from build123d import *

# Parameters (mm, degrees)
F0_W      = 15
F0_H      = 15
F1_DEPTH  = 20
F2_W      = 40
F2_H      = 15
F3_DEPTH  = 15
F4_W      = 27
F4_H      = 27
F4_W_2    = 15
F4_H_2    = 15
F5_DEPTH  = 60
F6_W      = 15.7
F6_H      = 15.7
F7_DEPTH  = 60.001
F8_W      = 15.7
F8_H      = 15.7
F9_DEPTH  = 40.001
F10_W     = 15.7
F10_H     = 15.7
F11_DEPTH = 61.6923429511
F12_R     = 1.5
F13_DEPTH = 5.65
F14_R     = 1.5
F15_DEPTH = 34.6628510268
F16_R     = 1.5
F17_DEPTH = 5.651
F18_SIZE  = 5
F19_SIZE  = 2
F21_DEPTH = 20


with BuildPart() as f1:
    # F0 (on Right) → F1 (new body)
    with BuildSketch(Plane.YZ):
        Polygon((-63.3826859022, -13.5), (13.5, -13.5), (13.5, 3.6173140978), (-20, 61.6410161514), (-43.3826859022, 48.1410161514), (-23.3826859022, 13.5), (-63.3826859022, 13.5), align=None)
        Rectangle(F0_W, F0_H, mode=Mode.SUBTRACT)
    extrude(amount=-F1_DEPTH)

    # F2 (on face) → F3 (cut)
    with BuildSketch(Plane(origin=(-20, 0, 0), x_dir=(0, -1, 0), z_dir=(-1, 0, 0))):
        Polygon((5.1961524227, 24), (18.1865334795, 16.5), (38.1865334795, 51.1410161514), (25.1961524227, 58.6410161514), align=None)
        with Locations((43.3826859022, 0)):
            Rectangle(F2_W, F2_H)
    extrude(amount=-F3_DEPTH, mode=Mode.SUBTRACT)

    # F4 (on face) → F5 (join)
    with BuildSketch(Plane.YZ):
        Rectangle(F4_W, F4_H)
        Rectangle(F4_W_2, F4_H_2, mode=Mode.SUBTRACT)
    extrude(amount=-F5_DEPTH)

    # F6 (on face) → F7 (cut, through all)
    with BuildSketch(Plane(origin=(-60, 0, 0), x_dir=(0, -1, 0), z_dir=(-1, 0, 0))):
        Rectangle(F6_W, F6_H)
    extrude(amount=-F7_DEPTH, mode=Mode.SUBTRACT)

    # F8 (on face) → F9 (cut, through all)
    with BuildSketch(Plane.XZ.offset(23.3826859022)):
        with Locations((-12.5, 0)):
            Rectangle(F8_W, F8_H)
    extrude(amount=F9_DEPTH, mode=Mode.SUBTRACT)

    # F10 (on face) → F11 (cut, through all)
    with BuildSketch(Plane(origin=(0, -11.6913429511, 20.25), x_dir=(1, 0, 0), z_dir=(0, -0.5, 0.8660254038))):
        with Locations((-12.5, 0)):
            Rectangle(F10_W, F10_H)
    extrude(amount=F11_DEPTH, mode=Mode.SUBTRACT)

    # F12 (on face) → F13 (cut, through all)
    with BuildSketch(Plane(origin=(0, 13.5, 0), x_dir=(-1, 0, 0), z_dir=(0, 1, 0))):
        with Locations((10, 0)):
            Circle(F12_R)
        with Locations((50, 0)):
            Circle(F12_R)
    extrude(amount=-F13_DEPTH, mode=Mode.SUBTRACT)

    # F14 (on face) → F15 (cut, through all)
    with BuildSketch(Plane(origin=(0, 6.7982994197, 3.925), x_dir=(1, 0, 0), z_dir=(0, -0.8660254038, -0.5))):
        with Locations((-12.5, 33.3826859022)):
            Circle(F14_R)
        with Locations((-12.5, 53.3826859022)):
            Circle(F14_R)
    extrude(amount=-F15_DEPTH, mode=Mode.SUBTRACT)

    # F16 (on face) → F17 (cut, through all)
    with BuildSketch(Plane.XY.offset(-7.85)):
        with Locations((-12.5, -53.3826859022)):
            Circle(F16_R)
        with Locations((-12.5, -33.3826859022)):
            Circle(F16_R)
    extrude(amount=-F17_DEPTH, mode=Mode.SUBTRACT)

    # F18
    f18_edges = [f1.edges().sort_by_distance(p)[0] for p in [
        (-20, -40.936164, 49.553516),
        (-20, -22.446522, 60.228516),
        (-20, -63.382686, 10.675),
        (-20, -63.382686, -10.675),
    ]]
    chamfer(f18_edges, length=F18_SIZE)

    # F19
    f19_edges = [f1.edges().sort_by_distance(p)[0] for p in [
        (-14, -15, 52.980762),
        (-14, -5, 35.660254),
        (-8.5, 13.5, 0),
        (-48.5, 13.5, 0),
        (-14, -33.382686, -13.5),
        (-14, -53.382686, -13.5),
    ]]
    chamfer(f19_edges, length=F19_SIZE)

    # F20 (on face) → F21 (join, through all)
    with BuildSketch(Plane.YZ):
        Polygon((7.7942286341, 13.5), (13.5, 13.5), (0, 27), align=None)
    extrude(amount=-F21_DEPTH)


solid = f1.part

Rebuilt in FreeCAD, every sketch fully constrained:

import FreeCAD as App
import Part
import Sketcher
from FreeCAD import Vector
Q = App.Units.Quantity


def edges_at(feature, points):
    """Names of the edges that pass closest to the given points."""
    edges = feature.Shape.Edges
    near = lambda p: min(range(len(edges)), key=lambda i: edges[i].distToShape(Part.Vertex(*p))[0])
    return sorted({f"Edge{near(p) + 1}" for p in points})


def add_polygon(sketch, points):
    """Adds a closed chain of lines whose ends are joined by coincident constraints."""
    first, n = sketch.GeometryCount, len(points)
    for a, b in zip(points, points[1:] + points[:1]):
        sketch.addGeometry(Part.LineSegment(App.Vector(*a, 0), App.Vector(*b, 0)), False)
    for i in range(n):
        sketch.addConstraint(Sketcher.Constraint("Coincident", first + i, 2, first + (i + 1) % n, 1))

doc = App.newDocument("Part")
body = doc.addObject("PartDesign::Body", "Body")

sketch1 = body.newObject("Sketcher::SketchObject", "Sketch")
sketch1.AttachmentSupport = (doc.getObject("YZ_Plane"), [""])
sketch1.MapMode = "FlatFace"
add_polygon(sketch1, [(-63, -14), (14, -14), (14, 4), (-20, 62), (-43, 48), (-23, 14), (-63, 14)])
add_polygon(sketch1, [(8, -8), (-8, -8), (-8, 8), (8, 8)])
sketch1.addConstraint([
    Sketcher.Constraint("Horizontal", 0),
    Sketcher.Constraint("Vertical", 1),
    Sketcher.Constraint("Horizontal", 5),
    Sketcher.Constraint("Vertical", 6),
    Sketcher.Constraint("Horizontal", 7),
    Sketcher.Constraint("Vertical", 8),
    Sketcher.Constraint("Horizontal", 9),
    Sketcher.Constraint("Vertical", 10),
    Sketcher.Constraint("Symmetric", 7, 2, 9, 2, -1, 1),
    Sketcher.Constraint("Perpendicular", 2, 3),
    Sketcher.Constraint("Perpendicular", 3, 4),
    Sketcher.Constraint("Equal", 9, 8),
    Sketcher.Constraint("DistanceX", 5, 2, 5, 1, Q("40 mm")),
    Sketcher.Constraint("DistanceX", 7, 2, 7, 1, Q("15 mm")),
    Sketcher.Constraint("DistanceY", 6, 2, 6, 1, Q("27 mm")),
    Sketcher.Constraint("Angle", 2, Q("120 deg")),
    Sketcher.Constraint("Distance", 2, Q("67 mm")),
    Sketcher.Constraint("Distance", 3, Q("27 mm")),
    Sketcher.Constraint("Distance", 4, Q("40 mm")),
    Sketcher.Constraint("DistanceX", 2, 2, -1, 1, Q("20 mm")),
    Sketcher.Constraint("DistanceY", 0, 2, 7, 2, Q("6 mm")),
])
pad1 = body.newObject("PartDesign::Pad", "Pad")
pad1.Profile = sketch1
pad1.Length = 20
pad1.Reversed = True

sketch2 = body.newObject("Sketcher::SketchObject", "Sketch001")
sketch2.AttachmentSupport = (doc.getObject("YZ_Plane"), [""])
sketch2.MapMode = "FlatFace"
sketch2.AttachmentOffset = App.Placement(Vector(0, 0, -20), App.Rotation())
add_polygon(sketch2, [(-5, 24), (-18, 16), (-38, 51), (-25, 59)])
add_polygon(sketch2, [(-23, 8), (-23, -8), (-63, -8), (-63, 8)])
sketch2.addConstraint([
    Sketcher.Constraint("Vertical", 4),
    Sketcher.Constraint("Horizontal", 5),
    Sketcher.Constraint("Vertical", 6),
    Sketcher.Constraint("Horizontal", 7),
    Sketcher.Constraint("Perpendicular", 0, 1),
    Sketcher.Constraint("Perpendicular", 1, 2),
    Sketcher.Constraint("Perpendicular", 2, 3),
    Sketcher.Constraint("DistanceX", 5, 2, 5, 1, Q("40 mm")),
    Sketcher.Constraint("DistanceY", 4, 2, 4, 1, Q("15 mm")),
    Sketcher.Constraint("Angle", 0, Q("-150 deg")),
    Sketcher.Constraint("Distance", 0, Q("15 mm")),
    Sketcher.Constraint("Distance", 1, Q("40 mm")),
    Sketcher.Constraint("DistanceY", -1, 1, 3, 2, Q("24 mm")),
    Sketcher.Constraint("DistanceY", 4, 2, 0, 2, Q("24 mm")),
    Sketcher.Constraint("DistanceX", 0, 2, -1, 1, Q("18.186533 mm")),
    Sketcher.Constraint("DistanceX", 4, 2, -1, 1, Q("23.382686 mm")),
])
pocket1 = body.newObject("PartDesign::Pocket", "Pocket")
pocket1.Profile = sketch2
pocket1.Length = 15
pocket1.Reversed = True

sketch3 = body.newObject("Sketcher::SketchObject", "Sketch002")
sketch3.AttachmentSupport = (doc.getObject("YZ_Plane"), [""])
sketch3.MapMode = "FlatFace"
add_polygon(sketch3, [(-14, 14), (-14, -14), (14, -14), (14, 14)])
add_polygon(sketch3, [(8, -8), (-8, -8), (-8, 8), (8, 8)])
sketch3.addConstraint([
    Sketcher.Constraint("Vertical", 0),
    Sketcher.Constraint("Horizontal", 1),
    Sketcher.Constraint("Vertical", 2),
    Sketcher.Constraint("Horizontal", 3),
    Sketcher.Constraint("Horizontal", 4),
    Sketcher.Constraint("Vertical", 5),
    Sketcher.Constraint("Horizontal", 6),
    Sketcher.Constraint("Vertical", 7),
    Sketcher.Constraint("Symmetric", 0, 2, 2, 2, -1, 1),
    Sketcher.Constraint("Symmetric", 4, 2, 6, 2, -1, 1),
    Sketcher.Constraint("Equal", 3, 0),
    Sketcher.Constraint("Equal", 6, 5),
    Sketcher.Constraint("DistanceX", 1, 1, 1, 2, Q("27 mm")),
    Sketcher.Constraint("DistanceX", 4, 2, 4, 1, Q("15 mm")),
])
pad2 = body.newObject("PartDesign::Pad", "Pad001")
pad2.Profile = sketch3
pad2.Length = 60
pad2.Reversed = True

sketch4 = body.newObject("Sketcher::SketchObject", "Sketch003")
sketch4.AttachmentSupport = (doc.getObject("YZ_Plane"), [""])
sketch4.MapMode = "FlatFace"
sketch4.AttachmentOffset = App.Placement(Vector(0, 0, -60), App.Rotation())
add_polygon(sketch4, [(8, 8), (8, -8), (-8, -8), (-8, 8)])
sketch4.addConstraint([
    Sketcher.Constraint("Vertical", 0),
    Sketcher.Constraint("Horizontal", 1),
    Sketcher.Constraint("Vertical", 2),
    Sketcher.Constraint("Horizontal", 3),
    Sketcher.Constraint("Symmetric", 0, 2, 2, 2, -1, 1),
    Sketcher.Constraint("Equal", 3, 0),
    Sketcher.Constraint("DistanceX", 1, 2, 1, 1, Q("15.7 mm")),
])
pocket2 = body.newObject("PartDesign::Pocket", "Pocket001")
pocket2.Profile = sketch4
pocket2.Type = "ThroughAll"
pocket2.Reversed = True

sketch5 = body.newObject("Sketcher::SketchObject", "Sketch004")
sketch5.AttachmentSupport = (doc.getObject("XZ_Plane"), [""])
sketch5.MapMode = "FlatFace"
sketch5.AttachmentOffset = App.Placement(Vector(0, 0, 23.382686), App.Rotation())
add_polygon(sketch5, [(-20, 8), (-20, -8), (-5, -8), (-5, 8)])
sketch5.addConstraint([
    Sketcher.Constraint("Vertical", 0),
    Sketcher.Constraint("Horizontal", 1),
    Sketcher.Constraint("Vertical", 2),
    Sketcher.Constraint("Horizontal", 3),
    Sketcher.Constraint("Equal", 3, 0),
    Sketcher.Constraint("DistanceX", 1, 1, 1, 2, Q("15.7 mm")),
    Sketcher.Constraint("DistanceX", 0, 2, -1, 1, Q("20.35 mm")),
    Sketcher.Constraint("DistanceY", 0, 2, -1, 1, Q("7.85 mm")),
])
pocket3 = body.newObject("PartDesign::Pocket", "Pocket002")
pocket3.Profile = sketch5
pocket3.Type = "ThroughAll"
pocket3.Reversed = True

sketch6 = body.newObject("Sketcher::SketchObject", "Sketch005")
sketch6.Placement = App.Placement(Vector(0, -11.691343, 20.25), App.Rotation(Vector(1, 0, 0), Vector(0, 0.866025404, 0.5), Vector(0, -0.5, 0.866025404), "ZXY"))
add_polygon(sketch6, [(-20, 8), (-20, -8), (-5, -8), (-5, 8)])
sketch6.addConstraint([
    Sketcher.Constraint("Vertical", 0),
    Sketcher.Constraint("Horizontal", 1),
    Sketcher.Constraint("Vertical", 2),
    Sketcher.Constraint("Horizontal", 3),
    Sketcher.Constraint("Equal", 3, 0),
    Sketcher.Constraint("DistanceX", 1, 1, 1, 2, Q("15.7 mm")),
    Sketcher.Constraint("DistanceX", 0, 2, -1, 1, Q("20.35 mm")),
    Sketcher.Constraint("DistanceY", 0, 2, -1, 1, Q("7.85 mm")),
])
pocket4 = body.newObject("PartDesign::Pocket", "Pocket003")
pocket4.Profile = sketch6
pocket4.Type = "ThroughAll"
pocket4.Reversed = True

sketch7 = body.newObject("Sketcher::SketchObject", "Sketch006")
sketch7.AttachmentSupport = (doc.getObject("XZ_Plane"), [""])
sketch7.MapMode = "FlatFace"
sketch7.AttachmentOffset = App.Placement(Vector(0, 0, -13.5), App.Rotation())
sketch7.addGeometry([
    Part.Circle(Vector(-10, 0, 0), Vector(0, 0, 1), 1.5),
    Part.Circle(Vector(-50, 0, 0), Vector(0, 0, 1), 1.5),
], False)
sketch7.addConstraint([
    Sketcher.Constraint("Equal", 0, 1),
    Sketcher.Constraint("PointOnObject", 0, 3, -1),
    Sketcher.Constraint("PointOnObject", 1, 3, -1),
    Sketcher.Constraint("Diameter", 0, Q("3 mm")),
    Sketcher.Constraint("DistanceX", 0, 3, -1, 1, Q("10 mm")),
    Sketcher.Constraint("DistanceX", 1, 3, -1, 1, Q("50 mm")),
])
pocket5 = body.newObject("PartDesign::Pocket", "Pocket004")
pocket5.Profile = sketch7
pocket5.Length = 5.65
pocket5.Reversed = True

sketch8 = body.newObject("Sketcher::SketchObject", "Sketch007")
sketch8.Placement = App.Placement(Vector(0, 6.798299, 3.925), App.Rotation(Vector(1, 0, 0), Vector(0, -0.5, 0.866025404), Vector(0, -0.866025404, -0.5), "ZXY"))
sketch8.addGeometry([
    Part.Circle(Vector(-12.5, 33.4, 0), Vector(0, 0, 1), 1.5),
    Part.Circle(Vector(-12.5, 53.4, 0), Vector(0, 0, 1), 1.5),
], False)
sketch8.addConstraint([
    Sketcher.Constraint("Equal", 0, 1),
    Sketcher.Constraint("Vertical", 0, 3, 1, 3),
    Sketcher.Constraint("Diameter", 0, Q("3 mm")),
    Sketcher.Constraint("DistanceY", 0, 3, 1, 3, Q("20 mm")),
    Sketcher.Constraint("DistanceX", 0, 3, -1, 1, Q("12.5 mm")),
    Sketcher.Constraint("DistanceY", -1, 1, 0, 3, Q("33.382686 mm")),
])
pocket6 = body.newObject("PartDesign::Pocket", "Pocket005")
pocket6.Profile = sketch8
pocket6.Type = "ThroughAll"

sketch9 = body.newObject("Sketcher::SketchObject", "Sketch008")
sketch9.AttachmentSupport = (doc.getObject("XY_Plane"), [""])
sketch9.MapMode = "FlatFace"
sketch9.AttachmentOffset = App.Placement(Vector(0, 0, -7.85), App.Rotation())
sketch9.addGeometry([
    Part.Circle(Vector(-12.5, -53.4, 0), Vector(0, 0, 1), 1.5),
    Part.Circle(Vector(-12.5, -33.4, 0), Vector(0, 0, 1), 1.5),
], False)
sketch9.addConstraint([
    Sketcher.Constraint("Equal", 0, 1),
    Sketcher.Constraint("Vertical", 0, 3, 1, 3),
    Sketcher.Constraint("Diameter", 0, Q("3 mm")),
    Sketcher.Constraint("DistanceY", 0, 3, 1, 3, Q("20 mm")),
    Sketcher.Constraint("DistanceX", 0, 3, -1, 1, Q("12.5 mm")),
    Sketcher.Constraint("DistanceY", 0, 3, -1, 1, Q("53.382686 mm")),
])
pocket7 = body.newObject("PartDesign::Pocket", "Pocket006")
pocket7.Profile = sketch9
pocket7.Type = "ThroughAll"
doc.recompute()

chamfer = body.newObject("PartDesign::Chamfer", "Chamfer")
chamfer.Base = (pocket7, edges_at(pocket7, [
    (-20, -40.936, 49.554),
    (-20, -22.447, 60.229),
    (-20, -63.383, 10.675),
    (-20, -63.383, -10.675),
]))
chamfer.Size = 5
doc.recompute()

chamfer2 = body.newObject("PartDesign::Chamfer", "Chamfer001")
chamfer2.Base = (chamfer, edges_at(chamfer, [
    (-14, -15, 52.981),
    (-14, -5, 35.66),
    (-8.5, 13.5, 0),
    (-48.5, 13.5, 0),
    (-14, -33.383, -13.5),
    (-14, -53.383, -13.5),
]))
chamfer2.Size = 2

sketch10 = body.newObject("Sketcher::SketchObject", "Sketch009")
sketch10.AttachmentSupport = (doc.getObject("YZ_Plane"), [""])
sketch10.MapMode = "FlatFace"
add_polygon(sketch10, [(8, 14), (14, 14), (0, 27)])
sketch10.addConstraint([
    Sketcher.Constraint("Horizontal", 0),
    Sketcher.Constraint("PointOnObject", 1, 2, -2),
    Sketcher.Constraint("Angle", 1, Q("135 deg")),
    Sketcher.Constraint("Angle", 2, Q("-60 deg")),
    Sketcher.Constraint("DistanceY", -1, 1, 1, 2, Q("27 mm")),
    Sketcher.Constraint("DistanceX", -1, 1, 0, 2, Q("13.5 mm")),
])
pad3 = body.newObject("PartDesign::Pad", "Pad002")
pad3.Profile = sketch10
pad3.Length = 20
pad3.Reversed = True

doc.recompute()
